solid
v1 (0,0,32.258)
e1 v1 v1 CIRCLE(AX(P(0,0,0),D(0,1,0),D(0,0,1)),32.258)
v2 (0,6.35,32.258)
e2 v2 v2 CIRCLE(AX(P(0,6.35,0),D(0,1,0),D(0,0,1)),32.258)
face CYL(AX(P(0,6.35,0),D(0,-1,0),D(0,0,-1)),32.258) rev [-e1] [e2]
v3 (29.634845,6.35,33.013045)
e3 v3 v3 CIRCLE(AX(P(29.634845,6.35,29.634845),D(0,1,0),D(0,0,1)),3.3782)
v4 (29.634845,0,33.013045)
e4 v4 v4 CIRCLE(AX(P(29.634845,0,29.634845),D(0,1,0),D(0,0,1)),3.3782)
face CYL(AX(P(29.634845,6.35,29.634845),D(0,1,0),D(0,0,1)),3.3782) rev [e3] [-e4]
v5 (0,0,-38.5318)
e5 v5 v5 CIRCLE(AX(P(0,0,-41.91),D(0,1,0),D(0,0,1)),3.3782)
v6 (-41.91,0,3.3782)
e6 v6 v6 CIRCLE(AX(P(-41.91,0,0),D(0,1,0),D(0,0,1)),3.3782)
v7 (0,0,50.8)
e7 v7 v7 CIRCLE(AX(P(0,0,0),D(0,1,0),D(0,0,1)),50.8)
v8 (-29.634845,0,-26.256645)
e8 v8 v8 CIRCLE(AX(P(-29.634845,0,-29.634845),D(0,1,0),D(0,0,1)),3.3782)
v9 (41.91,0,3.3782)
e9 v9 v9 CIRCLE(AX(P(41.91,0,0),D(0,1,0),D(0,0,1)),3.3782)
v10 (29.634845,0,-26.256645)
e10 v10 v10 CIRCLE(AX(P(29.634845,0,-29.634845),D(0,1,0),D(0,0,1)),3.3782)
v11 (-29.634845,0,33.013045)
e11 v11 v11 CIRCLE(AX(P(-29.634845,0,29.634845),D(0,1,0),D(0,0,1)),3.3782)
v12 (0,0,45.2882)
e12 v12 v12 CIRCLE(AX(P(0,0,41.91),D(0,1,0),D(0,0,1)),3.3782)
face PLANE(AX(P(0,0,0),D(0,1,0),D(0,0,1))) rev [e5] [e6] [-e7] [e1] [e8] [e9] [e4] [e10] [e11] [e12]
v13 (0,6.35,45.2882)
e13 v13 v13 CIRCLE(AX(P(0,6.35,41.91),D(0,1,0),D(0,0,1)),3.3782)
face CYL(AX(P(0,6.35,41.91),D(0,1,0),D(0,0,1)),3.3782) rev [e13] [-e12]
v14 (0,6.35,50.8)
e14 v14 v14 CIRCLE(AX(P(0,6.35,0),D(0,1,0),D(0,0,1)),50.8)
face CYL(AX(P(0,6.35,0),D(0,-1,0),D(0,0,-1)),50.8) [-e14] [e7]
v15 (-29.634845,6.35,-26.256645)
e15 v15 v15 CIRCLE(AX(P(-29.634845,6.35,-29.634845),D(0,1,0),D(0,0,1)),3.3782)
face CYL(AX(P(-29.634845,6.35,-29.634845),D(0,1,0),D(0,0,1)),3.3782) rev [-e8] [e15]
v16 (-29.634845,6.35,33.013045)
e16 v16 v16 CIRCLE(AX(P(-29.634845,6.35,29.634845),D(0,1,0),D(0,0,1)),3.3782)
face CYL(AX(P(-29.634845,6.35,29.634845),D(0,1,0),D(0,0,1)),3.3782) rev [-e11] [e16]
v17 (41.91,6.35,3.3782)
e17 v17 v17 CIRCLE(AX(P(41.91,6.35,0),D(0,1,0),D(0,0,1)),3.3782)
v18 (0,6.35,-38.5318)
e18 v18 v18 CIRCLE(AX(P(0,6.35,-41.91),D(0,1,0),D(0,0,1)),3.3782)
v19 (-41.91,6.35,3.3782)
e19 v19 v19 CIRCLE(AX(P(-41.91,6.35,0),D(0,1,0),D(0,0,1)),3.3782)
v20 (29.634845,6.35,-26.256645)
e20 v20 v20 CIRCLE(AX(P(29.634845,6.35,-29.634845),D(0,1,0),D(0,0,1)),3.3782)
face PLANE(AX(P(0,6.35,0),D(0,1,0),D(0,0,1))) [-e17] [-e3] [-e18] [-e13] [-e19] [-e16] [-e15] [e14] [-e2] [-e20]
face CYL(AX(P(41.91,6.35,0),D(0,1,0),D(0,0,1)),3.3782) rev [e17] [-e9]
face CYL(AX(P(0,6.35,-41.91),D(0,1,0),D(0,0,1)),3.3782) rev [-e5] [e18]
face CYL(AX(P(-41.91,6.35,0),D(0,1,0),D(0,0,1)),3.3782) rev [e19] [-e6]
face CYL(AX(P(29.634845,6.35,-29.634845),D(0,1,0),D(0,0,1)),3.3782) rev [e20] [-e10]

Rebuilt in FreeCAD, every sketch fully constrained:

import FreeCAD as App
import Part
import Sketcher

V = App.Vector
Q = App.Units.Quantity

doc = App.newDocument("Part")
body = doc.addObject("PartDesign::Body", "Body")

# Sketch on XZ plane
sketch1 = body.newObject("Sketcher::SketchObject", "Sketch")
sketch1.AttachmentSupport = (doc.getObject("XZ_Plane"), [""])
sketch1.MapMode = "FlatFace"
sketch1.addGeometry([
    Part.Circle(V(0, 0, 0), V(0, 0, 1), 51),
    Part.Circle(V(0, 0, 0), V(0, 0, 1), 32),
], False)
sketch1.addConstraint([
    Sketcher.Constraint("Coincident", 0, 3, -1, 1),
    Sketcher.Constraint("Coincident", 1, 3, -1, 1),
    Sketcher.Constraint("Diameter", 0, Q("4 in")),
    Sketcher.Constraint("Diameter", 1, Q("2.54 in")),
])
pad1 = body.newObject("PartDesign::Pad", "Pad")
pad1.Profile = sketch1
pad1.Length = Q("0.25 in")
pad1.Reversed = True

# Sketch on XZ plane
sketch2 = body.newObject("Sketcher::SketchObject", "Sketch001")
sketch2.AttachmentSupport = (doc.getObject("XZ_Plane"), [""])
sketch2.MapMode = "FlatFace"
sketch2.AttachmentOffset = App.Placement(V(0, 0, -0.25 * 25.4), App.Rotation())
sketch2.addGeometry(Part.Circle(V(0, -41.9, 0), V(0, 0, 1), 3.4), False)
sketch2.addConstraint([
    Sketcher.Constraint("PointOnObject", 0, 3, -2),
    Sketcher.Constraint("Diameter", 0, Q("0.266 in")),
    Sketcher.Constraint("DistanceY", 0, 3, -1, 1, Q("1.65 in")),
])
doc.recompute()
hole = body.newObject("PartDesign::Hole", "Hole")
hole.Profile = sketch2
hole.ThreadType = "None"
hole.Diameter = Q("0.266 in")
hole.DepthType = "ThroughAll"
hole.Reversed = True
doc.recompute()

polarpattern = body.newObject("PartDesign::PolarPattern", "PolarPattern")
polarpattern.Originals = [hole]
polarpattern.Axis = (doc.getObject("Y_Axis"), [""])
polarpattern.Angle = 360
polarpattern.Occurrences = 8
body.Tip = polarpattern

doc.recompute()
